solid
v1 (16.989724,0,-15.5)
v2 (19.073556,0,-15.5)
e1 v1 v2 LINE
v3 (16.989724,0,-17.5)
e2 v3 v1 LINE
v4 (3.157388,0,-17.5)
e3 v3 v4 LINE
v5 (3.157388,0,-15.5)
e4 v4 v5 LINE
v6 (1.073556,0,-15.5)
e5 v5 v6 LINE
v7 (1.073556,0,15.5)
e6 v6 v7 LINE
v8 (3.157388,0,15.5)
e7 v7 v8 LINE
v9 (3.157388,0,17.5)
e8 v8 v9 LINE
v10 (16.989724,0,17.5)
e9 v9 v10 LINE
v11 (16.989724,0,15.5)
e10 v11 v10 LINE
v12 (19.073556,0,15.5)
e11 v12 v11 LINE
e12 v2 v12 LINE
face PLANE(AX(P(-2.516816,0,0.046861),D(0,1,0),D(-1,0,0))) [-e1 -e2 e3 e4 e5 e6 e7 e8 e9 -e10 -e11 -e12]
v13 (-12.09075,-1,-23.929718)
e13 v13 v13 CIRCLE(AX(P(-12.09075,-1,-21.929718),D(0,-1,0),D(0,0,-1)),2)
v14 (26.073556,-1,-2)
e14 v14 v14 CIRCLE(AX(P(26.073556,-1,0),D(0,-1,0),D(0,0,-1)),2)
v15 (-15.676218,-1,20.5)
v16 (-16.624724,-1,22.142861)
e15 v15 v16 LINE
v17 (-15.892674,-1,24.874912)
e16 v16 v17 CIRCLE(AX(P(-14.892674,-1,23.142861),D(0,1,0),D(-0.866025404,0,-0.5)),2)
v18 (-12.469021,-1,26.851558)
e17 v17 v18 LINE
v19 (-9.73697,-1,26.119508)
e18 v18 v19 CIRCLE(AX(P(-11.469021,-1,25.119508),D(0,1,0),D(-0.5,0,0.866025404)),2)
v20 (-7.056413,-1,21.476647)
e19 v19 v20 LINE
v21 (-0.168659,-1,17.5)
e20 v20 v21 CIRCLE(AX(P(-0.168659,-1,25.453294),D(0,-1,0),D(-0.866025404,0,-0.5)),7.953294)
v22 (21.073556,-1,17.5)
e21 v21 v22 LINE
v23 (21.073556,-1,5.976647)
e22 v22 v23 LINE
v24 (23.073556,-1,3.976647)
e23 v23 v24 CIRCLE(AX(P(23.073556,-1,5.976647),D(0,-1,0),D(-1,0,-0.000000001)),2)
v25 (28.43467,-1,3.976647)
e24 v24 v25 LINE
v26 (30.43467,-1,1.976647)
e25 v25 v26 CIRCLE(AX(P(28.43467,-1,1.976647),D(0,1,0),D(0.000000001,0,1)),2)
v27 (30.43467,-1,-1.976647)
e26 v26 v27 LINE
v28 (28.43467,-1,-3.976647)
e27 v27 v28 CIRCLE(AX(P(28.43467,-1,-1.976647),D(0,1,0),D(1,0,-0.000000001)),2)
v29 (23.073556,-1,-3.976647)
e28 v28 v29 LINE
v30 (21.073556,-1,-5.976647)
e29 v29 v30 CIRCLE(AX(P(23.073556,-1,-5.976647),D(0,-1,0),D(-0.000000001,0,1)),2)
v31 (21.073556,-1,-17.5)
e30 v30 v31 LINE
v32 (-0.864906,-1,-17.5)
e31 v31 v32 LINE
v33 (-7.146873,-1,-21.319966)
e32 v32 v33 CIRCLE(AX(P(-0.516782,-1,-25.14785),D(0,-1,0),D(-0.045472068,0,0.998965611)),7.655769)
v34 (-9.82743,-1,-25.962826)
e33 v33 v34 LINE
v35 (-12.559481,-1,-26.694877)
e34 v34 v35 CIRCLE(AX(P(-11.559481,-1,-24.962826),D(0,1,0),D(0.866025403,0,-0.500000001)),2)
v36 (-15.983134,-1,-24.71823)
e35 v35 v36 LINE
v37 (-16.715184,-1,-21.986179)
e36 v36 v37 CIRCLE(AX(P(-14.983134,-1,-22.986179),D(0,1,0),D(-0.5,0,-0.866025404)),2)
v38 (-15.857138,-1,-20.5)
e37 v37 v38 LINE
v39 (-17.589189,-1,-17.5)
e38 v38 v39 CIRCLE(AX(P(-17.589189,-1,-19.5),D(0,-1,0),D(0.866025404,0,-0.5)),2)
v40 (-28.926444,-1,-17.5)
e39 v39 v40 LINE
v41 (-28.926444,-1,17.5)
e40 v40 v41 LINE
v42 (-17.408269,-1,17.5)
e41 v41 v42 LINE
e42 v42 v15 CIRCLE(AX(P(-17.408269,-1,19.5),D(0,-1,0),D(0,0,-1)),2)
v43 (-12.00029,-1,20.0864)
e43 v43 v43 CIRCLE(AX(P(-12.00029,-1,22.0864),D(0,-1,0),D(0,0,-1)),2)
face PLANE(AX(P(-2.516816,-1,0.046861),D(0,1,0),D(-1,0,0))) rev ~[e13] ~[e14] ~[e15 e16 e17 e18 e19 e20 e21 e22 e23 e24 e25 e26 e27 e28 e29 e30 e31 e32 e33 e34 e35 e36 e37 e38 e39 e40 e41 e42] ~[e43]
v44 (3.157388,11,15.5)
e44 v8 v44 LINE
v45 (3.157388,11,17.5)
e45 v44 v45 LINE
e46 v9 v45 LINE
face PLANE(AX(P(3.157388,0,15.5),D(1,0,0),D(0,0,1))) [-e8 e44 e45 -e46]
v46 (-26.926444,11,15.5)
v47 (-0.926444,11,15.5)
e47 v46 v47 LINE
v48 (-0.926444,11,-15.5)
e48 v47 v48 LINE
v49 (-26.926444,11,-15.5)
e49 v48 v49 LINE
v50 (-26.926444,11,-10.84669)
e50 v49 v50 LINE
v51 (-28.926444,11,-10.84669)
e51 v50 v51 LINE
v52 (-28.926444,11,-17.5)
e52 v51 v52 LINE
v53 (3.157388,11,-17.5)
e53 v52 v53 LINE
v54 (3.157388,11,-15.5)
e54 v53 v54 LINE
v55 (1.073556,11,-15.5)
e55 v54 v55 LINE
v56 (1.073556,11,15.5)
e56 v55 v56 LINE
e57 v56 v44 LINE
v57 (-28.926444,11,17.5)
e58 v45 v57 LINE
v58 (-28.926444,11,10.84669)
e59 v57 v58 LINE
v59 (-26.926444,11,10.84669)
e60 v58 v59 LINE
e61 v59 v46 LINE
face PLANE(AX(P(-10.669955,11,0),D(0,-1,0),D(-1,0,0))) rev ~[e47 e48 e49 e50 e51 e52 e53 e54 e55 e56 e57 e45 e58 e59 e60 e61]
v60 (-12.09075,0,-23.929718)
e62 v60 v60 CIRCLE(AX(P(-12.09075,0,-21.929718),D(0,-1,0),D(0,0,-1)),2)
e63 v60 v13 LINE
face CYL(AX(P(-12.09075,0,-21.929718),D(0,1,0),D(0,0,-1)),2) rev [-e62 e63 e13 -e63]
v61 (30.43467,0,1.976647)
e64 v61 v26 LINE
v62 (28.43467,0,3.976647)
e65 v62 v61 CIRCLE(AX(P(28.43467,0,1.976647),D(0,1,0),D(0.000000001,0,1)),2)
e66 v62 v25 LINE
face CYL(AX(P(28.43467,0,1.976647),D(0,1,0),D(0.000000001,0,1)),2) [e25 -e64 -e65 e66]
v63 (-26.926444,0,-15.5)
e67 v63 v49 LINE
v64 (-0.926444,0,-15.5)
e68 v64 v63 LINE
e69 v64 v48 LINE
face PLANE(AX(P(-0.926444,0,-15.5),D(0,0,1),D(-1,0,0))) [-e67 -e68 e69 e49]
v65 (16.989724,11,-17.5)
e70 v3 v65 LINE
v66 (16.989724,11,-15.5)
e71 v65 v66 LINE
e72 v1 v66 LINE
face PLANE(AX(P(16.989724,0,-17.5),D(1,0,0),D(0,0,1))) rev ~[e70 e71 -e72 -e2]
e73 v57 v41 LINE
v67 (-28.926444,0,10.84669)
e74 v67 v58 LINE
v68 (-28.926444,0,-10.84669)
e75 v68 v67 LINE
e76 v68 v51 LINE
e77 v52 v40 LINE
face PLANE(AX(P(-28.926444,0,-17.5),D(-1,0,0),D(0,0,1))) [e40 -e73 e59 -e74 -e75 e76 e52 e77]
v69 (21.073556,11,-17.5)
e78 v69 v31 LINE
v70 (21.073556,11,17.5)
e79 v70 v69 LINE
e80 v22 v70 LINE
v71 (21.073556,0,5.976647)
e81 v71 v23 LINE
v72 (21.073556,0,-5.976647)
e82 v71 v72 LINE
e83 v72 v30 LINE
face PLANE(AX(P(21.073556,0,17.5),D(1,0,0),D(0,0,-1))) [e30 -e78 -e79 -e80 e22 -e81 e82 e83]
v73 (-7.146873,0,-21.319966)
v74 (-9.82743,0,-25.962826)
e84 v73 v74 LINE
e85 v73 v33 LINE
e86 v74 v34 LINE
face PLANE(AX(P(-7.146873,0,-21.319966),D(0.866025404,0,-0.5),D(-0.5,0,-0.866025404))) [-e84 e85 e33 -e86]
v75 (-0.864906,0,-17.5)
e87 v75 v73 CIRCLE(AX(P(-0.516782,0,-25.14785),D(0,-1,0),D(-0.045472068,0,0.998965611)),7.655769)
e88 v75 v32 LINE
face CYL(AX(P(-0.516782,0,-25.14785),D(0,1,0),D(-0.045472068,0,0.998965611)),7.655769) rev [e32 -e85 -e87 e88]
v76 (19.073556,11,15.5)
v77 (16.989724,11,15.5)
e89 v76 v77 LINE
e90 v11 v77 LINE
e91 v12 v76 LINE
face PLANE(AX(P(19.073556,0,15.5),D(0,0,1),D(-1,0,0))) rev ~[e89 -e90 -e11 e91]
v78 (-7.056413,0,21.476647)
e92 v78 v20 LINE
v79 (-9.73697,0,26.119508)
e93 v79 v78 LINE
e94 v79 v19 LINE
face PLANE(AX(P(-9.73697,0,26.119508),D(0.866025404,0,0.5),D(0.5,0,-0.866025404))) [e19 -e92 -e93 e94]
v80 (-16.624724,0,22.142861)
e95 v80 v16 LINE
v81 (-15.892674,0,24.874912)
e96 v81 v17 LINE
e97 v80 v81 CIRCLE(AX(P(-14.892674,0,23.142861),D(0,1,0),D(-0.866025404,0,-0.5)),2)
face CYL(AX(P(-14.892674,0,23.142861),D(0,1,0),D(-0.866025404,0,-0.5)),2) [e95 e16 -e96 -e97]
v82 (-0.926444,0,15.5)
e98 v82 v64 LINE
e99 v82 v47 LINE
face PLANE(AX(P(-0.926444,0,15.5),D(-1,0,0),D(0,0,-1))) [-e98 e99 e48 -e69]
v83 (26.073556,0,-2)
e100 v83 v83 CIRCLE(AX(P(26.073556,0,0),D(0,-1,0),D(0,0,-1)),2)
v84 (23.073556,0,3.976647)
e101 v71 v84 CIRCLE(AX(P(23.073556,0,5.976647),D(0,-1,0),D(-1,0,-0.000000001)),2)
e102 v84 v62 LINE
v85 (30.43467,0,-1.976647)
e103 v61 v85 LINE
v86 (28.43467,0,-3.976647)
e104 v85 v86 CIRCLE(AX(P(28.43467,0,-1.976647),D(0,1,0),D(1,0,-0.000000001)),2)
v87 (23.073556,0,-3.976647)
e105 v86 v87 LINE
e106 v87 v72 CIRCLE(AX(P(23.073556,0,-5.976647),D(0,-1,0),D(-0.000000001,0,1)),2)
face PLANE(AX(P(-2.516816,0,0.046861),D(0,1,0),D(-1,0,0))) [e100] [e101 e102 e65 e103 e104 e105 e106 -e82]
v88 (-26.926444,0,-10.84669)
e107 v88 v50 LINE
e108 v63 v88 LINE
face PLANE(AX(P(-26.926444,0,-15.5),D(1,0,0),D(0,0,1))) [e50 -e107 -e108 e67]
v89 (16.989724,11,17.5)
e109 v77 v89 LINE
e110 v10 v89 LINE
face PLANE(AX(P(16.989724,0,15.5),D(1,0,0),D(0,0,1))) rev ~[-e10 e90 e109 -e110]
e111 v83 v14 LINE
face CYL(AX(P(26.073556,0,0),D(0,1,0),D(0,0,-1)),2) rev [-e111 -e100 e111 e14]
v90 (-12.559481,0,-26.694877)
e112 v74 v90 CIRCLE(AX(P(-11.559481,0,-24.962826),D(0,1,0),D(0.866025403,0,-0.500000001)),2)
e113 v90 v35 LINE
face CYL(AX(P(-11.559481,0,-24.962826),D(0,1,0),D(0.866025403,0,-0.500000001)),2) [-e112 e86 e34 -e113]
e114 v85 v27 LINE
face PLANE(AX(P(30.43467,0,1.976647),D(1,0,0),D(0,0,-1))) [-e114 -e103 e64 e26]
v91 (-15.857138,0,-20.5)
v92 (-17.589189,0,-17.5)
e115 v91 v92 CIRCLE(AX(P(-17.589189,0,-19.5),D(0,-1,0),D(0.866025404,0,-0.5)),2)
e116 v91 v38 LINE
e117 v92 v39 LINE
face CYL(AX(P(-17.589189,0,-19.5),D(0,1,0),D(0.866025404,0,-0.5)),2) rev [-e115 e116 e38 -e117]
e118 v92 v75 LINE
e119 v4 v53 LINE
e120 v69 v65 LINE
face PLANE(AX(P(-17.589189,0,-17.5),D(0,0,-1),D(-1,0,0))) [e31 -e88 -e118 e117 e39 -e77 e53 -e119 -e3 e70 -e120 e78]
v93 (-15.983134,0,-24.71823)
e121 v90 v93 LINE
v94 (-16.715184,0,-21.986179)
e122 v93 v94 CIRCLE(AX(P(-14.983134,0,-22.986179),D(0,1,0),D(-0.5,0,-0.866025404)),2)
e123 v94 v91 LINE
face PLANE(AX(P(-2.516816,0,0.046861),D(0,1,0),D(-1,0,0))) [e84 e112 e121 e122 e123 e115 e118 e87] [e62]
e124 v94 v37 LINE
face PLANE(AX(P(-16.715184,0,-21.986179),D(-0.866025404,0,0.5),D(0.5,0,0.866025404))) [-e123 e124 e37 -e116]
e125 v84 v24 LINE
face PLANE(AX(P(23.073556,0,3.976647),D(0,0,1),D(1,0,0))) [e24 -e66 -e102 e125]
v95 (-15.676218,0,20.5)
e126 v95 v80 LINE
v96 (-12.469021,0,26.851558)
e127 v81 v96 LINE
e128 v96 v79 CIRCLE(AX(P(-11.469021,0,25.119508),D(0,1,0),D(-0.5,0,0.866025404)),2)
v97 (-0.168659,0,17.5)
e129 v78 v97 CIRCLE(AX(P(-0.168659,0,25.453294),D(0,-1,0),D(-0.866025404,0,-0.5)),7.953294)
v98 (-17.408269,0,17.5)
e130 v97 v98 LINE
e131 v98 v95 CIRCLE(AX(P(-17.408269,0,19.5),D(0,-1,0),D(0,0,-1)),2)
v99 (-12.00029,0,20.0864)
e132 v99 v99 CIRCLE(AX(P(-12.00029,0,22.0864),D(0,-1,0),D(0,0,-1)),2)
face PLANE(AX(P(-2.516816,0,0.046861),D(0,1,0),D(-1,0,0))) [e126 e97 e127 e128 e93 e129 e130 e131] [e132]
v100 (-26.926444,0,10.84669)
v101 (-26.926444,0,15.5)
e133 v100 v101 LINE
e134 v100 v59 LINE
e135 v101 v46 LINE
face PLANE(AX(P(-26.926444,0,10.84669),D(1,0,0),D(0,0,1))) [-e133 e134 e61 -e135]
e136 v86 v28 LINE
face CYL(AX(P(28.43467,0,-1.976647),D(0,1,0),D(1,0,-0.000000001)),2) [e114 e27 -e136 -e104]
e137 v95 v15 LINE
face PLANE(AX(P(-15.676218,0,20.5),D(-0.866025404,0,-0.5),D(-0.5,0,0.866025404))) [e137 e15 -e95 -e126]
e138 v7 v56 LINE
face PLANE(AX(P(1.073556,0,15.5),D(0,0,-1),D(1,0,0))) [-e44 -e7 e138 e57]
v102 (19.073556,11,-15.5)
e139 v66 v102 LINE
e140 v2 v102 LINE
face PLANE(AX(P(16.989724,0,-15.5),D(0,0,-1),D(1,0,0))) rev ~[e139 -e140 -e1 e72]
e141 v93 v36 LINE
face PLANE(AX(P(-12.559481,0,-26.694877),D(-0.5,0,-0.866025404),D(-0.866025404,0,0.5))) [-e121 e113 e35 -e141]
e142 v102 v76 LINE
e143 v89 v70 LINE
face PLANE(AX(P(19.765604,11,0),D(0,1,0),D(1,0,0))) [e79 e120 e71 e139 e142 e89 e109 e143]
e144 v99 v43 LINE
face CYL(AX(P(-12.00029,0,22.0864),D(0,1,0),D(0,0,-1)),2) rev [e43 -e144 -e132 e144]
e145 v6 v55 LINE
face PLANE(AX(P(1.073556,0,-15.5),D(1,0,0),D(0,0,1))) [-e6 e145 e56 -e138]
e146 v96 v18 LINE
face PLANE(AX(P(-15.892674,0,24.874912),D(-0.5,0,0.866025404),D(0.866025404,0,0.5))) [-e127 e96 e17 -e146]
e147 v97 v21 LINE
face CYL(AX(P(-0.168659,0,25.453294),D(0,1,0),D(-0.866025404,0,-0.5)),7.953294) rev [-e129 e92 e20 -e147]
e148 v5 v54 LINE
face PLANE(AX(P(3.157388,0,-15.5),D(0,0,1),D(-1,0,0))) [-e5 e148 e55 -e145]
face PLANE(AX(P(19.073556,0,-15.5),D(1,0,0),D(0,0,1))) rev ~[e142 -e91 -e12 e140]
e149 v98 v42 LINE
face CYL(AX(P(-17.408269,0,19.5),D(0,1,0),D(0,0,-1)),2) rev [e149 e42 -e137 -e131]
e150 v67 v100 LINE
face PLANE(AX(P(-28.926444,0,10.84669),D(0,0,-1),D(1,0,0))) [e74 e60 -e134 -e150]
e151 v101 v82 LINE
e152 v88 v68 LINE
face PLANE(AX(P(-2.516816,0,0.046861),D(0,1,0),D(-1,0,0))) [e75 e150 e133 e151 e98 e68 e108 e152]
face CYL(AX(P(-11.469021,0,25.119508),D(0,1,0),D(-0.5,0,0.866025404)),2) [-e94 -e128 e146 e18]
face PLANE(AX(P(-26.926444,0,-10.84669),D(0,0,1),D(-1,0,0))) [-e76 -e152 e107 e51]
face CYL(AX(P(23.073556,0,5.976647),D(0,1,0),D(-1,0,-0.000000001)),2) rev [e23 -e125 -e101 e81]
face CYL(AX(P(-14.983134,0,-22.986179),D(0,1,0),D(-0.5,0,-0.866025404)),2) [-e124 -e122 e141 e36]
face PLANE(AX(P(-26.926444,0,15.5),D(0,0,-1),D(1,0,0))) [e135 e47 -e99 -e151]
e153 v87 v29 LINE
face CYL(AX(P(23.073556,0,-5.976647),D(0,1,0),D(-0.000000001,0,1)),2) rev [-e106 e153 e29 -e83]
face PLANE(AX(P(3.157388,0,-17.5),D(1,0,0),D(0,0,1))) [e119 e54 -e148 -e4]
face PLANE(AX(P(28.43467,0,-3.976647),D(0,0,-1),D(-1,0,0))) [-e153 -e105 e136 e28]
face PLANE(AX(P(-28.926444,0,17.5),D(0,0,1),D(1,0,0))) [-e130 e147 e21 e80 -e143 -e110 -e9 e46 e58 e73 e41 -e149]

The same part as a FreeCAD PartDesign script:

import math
import FreeCAD as App
import Part
import Sketcher

V = App.Vector
Q = App.Units.Quantity


def add_polygon(sketch, points):
    """Adds a closed chain of lines whose ends are joined by coincident constraints."""
    first, n = sketch.GeometryCount, len(points)
    for a, b in zip(points, points[1:] + points[:1]):
        sketch.addGeometry(Part.LineSegment(App.Vector(*a, 0), App.Vector(*b, 0)), False)
    for i in range(n):
        sketch.addConstraint(Sketcher.Constraint("Coincident", first + i, 2, first + (i + 1) % n, 1))

doc = App.newDocument("Part")
body = doc.addObject("PartDesign::Body", "Body")

# Sketch on XZ plane
sketch1 = body.newObject("Sketcher::SketchObject", "Sketch")
sketch1.AttachmentSupport = (doc.getObject("XZ_Plane"), [""])
sketch1.MapMode = "FlatFace"
add_polygon(sketch1, [(-0.9, 15.5), (-26.9, 15.5), (-26.9, 10.8), (-28.9, 10.8), (-28.9, 17.5), (3.2, 17.5), (3.2, 15.5), (1.1, 15.5), (1.1, -15.5), (3.2, -15.5), (3.2, -17.5), (-28.9, -17.5), (-28.9, -10.8), (-26.9, -10.8), (-26.9, -15.5), (-0.9, -15.5)])  # lines 0-15
sketch1.addConstraint([
    Sketcher.Constraint("Horizontal", 0),
    Sketcher.Constraint("Vertical", 1),
    Sketcher.Constraint("Horizontal", 2),
    Sketcher.Constraint("Vertical", 3),
    Sketcher.Constraint("Horizontal", 4),
    Sketcher.Constraint("Vertical", 5),
    Sketcher.Constraint("Horizontal", 6),
    Sketcher.Constraint("Vertical", 7),
    Sketcher.Constraint("Horizontal", 8),
    Sketcher.Constraint("Vertical", 9),
    Sketcher.Constraint("Horizontal", 10),
    Sketcher.Constraint("Vertical", 11),
    Sketcher.Constraint("Horizontal", 12),
    Sketcher.Constraint("Vertical", 13),
    Sketcher.Constraint("Horizontal", 14),
    Sketcher.Constraint("Vertical", 15),
    Sketcher.Constraint("Symmetric", 5, 2, 8, 2, -1),
    Sketcher.Constraint("Symmetric", 3, 2, 10, 2, -1),
    Sketcher.Constraint("Symmetric", 1, 2, 12, 2, -1),
    Sketcher.Constraint("Horizontal", 0, 2, 5, 2),
    Sketcher.Constraint("Horizontal", 8, 2, 13, 2),
    Sketcher.Constraint("Equal", 12, 5),
    Sketcher.Constraint("DistanceX", 0, 2, 0, 1, 26.0),
    Sketcher.Constraint("DistanceX", 2, 2, 2, 1, 2.0),
    Sketcher.Constraint("DistanceY", 7, 2, 7, 1, 31.0),
    Sketcher.Constraint("DistanceX", 0, 2, 6, 2, 28.0),
    Sketcher.Constraint("DistanceX", 4, 1, 4, 2, 32.083832),
    Sketcher.Constraint("DistanceY", 1, 2, 1, 1, 4.65331),
    Sketcher.Constraint("DistanceX", -1, 1, 4, 2, 3.157388),
])
pad1 = body.newObject("PartDesign::Pad", "Pad")
pad1.Profile = sketch1
pad1.Length = 11
pad1.Reversed = True
body2 = doc.addObject("PartDesign::Body", "Body001")

# Sketch on XZ plane
sketch2 = body2.newObject("Sketcher::SketchObject", "Sketch001")
sketch2.AttachmentSupport = (doc.getObject("XZ_Plane001"), [""])
sketch2.MapMode = "FlatFace"
add_polygon(sketch2, [(19.1, -15.5), (19.1, 15.5), (17, 15.5), (17, 17.5), (21.1, 17.5), (21.1, -17.5), (17, -17.5), (17, -15.5)])  # lines 0-7
sketch2.addConstraint([
    Sketcher.Constraint("Vertical", 0),
    Sketcher.Constraint("Horizontal", 1),
    Sketcher.Constraint("Vertical", 2),
    Sketcher.Constraint("Horizontal", 3),
    Sketcher.Constraint("Vertical", 4),
    Sketcher.Constraint("Horizontal", 5),
    Sketcher.Constraint("Vertical", 6),
    Sketcher.Constraint("Horizontal", 7),
    Sketcher.Constraint("Symmetric", 2, 2, 5, 2, -1),
    Sketcher.Constraint("Equal", 2, 6),
    Sketcher.Constraint("DistanceY", 0, 1, 0, 2, 31.0),
    Sketcher.Constraint("DistanceY", 2, 1, 2, 2, 2.0),
    Sketcher.Constraint("DistanceX", 0, 2, 3, 2, 2.0),
    Sketcher.Constraint("DistanceX", 1, 2, 1, 1, 2.083832),
    Sketcher.Constraint("DistanceX", -1, 1, 0, 2, 19.073556),
])
pad2 = body2.newObject("PartDesign::Pad", "Pad001")
pad2.Profile = sketch2
pad2.Length = 11
pad2.Reversed = True
body.AllowCompound = True
doc.recompute()

boolean = body.newObject("PartDesign::Boolean", "Boolean")
boolean.Type = "Fuse"
boolean.addObjects([body2])

# Sketch on XZ plane
sketch3 = body.newObject("Sketcher::SketchObject", "Sketch002")
sketch3.AttachmentSupport = (doc.getObject("XZ_Plane"), [""])
sketch3.MapMode = "FlatFace"
sketch3.addGeometry([
    Part.LineSegment(V(-17.4, 17.5, 0), V(-28.9, 17.5, 0)),  # 0
    Part.LineSegment(V(-28.9, 17.5, 0), V(-28.9, -17.5, 0)),  # 1
    Part.LineSegment(V(-28.9, -17.5, 0), V(-17.6, -17.5, 0)),  # 2
    Part.ArcOfCircle(Part.Circle(V(-17.6, -19.5, 0), V(0, 0, 1), 2), math.radians(-30), math.radians(90)),  # 3
    Part.LineSegment(V(-15.9, -20.5, 0), V(-16.7, -22, 0)),  # 4
    Part.ArcOfCircle(Part.Circle(V(-15, -23, 0), V(0, 0, 1), 2), math.radians(150), math.radians(240)),  # 5
    Part.LineSegment(V(-16, -24.7, 0), V(-12.6, -26.7, 0)),  # 6
    Part.ArcOfCircle(Part.Circle(V(-11.6, -25, 0), V(0, 0, 1), 2), math.radians(-120), math.radians(-30)),  # 7
    Part.LineSegment(V(-9.8, -26, 0), V(-7.1, -21.3, 0)),  # 8
    Part.ArcOfCircle(Part.Circle(V(-0.5, -25.1, 0), V(0, 0, 1), 7.7), math.radians(93), math.radians(150)),  # 9
    Part.LineSegment(V(-0.9, -17.5, 0), V(21.1, -17.5, 0)),  # 10
    Part.LineSegment(V(21.1, -17.5, 0), V(21.1, -6, 0)),  # 11
    Part.ArcOfCircle(Part.Circle(V(23.1, -6, 0), V(0, 0, 1), 2), math.radians(90), math.radians(180)),  # 12
    Part.LineSegment(V(23.1, -4, 0), V(28.4, -4, 0)),  # 13
    Part.ArcOfCircle(Part.Circle(V(28.4, -2, 0), V(0, 0, 1), 2), math.radians(-90), math.radians(0)),  # 14
    Part.LineSegment(V(30.4, -2, 0), V(30.4, 2, 0)),  # 15
    Part.ArcOfCircle(Part.Circle(V(28.4, 2, 0), V(0, 0, 1), 2), math.radians(0), math.radians(90)),  # 16
    Part.LineSegment(V(28.4, 4, 0), V(23.1, 4, 0)),  # 17
    Part.ArcOfCircle(Part.Circle(V(23.1, 6, 0), V(0, 0, 1), 2), math.radians(-180), math.radians(-90)),  # 18
    Part.LineSegment(V(21.1, 6, 0), V(21.1, 17.5, 0)),  # 19
    Part.LineSegment(V(21.1, 17.5, 0), V(-0.2, 17.5, 0)),  # 20
    Part.ArcOfCircle(Part.Circle(V(-0.2, 25.5, 0), V(0, 0, 1), 8), math.radians(-150), math.radians(-90)),  # 21
    Part.LineSegment(V(-7.1, 21.5, 0), V(-9.7, 26.1, 0)),  # 22
    Part.ArcOfCircle(Part.Circle(V(-11.5, 25.1, 0), V(0, 0, 1), 2), math.radians(30), math.radians(120)),  # 23
    Part.LineSegment(V(-12.5, 26.9, 0), V(-15.9, 24.9, 0)),  # 24
    Part.ArcOfCircle(Part.Circle(V(-14.9, 23.1, 0), V(0, 0, 1), 2), math.radians(120), math.radians(210)),  # 25
    Part.LineSegment(V(-16.6, 22.1, 0), V(-15.7, 20.5, 0)),  # 26
    Part.ArcOfCircle(Part.Circle(V(-17.4, 19.5, 0), V(0, 0, 1), 2), math.radians(-90), math.radians(30)),  # 27
    Part.Circle(V(26.1, 0, 0), V(0, 0, 1), 2),  # 28
    Part.Circle(V(-12.1, -21.9, 0), V(0, 0, 1), 2),  # 29
    Part.Circle(V(-12, 22.1, 0), V(0, 0, 1), 2),  # 30
], False)
sketch3.addConstraint([
    Sketcher.Constraint("Coincident", 0, 2, 1, 1),
    Sketcher.Constraint("Coincident", 1, 2, 2, 1),
    Sketcher.Constraint("Tangent", 2, 2, 3, 2),
    Sketcher.Constraint("Tangent", 3, 1, 4, 1),
    Sketcher.Constraint("Tangent", 4, 2, 5, 1),
    Sketcher.Constraint("Tangent", 5, 2, 6, 1),
    Sketcher.Constraint("Tangent", 6, 2, 7, 1),
    Sketcher.Constraint("Tangent", 7, 2, 8, 1),
    Sketcher.Constraint("Tangent", 8, 2, 9, 2),
    Sketcher.Constraint("Coincident", 9, 1, 10, 1),
    Sketcher.Constraint("Coincident", 10, 2, 11, 1),
    Sketcher.Constraint("Tangent", 11, 2, 12, 2),
    Sketcher.Constraint("Tangent", 12, 1, 13, 1),
    Sketcher.Constraint("Tangent", 13, 2, 14, 1),
    Sketcher.Constraint("Tangent", 14, 2, 15, 1),
    Sketcher.Constraint("Tangent", 15, 2, 16, 1),
    Sketcher.Constraint("Tangent", 16, 2, 17, 1),
    Sketcher.Constraint("Tangent", 17, 2, 18, 2),
    Sketcher.Constraint("Tangent", 18, 1, 19, 1),
    Sketcher.Constraint("Coincident", 19, 2, 20, 1),
    Sketcher.Constraint("Tangent", 20, 2, 21, 2),
    Sketcher.Constraint("Tangent", 21, 1, 22, 1),
    Sketcher.Constraint("Tangent", 22, 2, 23, 1),
    Sketcher.Constraint("Tangent", 23, 2, 24, 1),
    Sketcher.Constraint("Tangent", 24, 2, 25, 1),
    Sketcher.Constraint("Tangent", 25, 2, 26, 1),
    Sketcher.Constraint("Tangent", 26, 2, 27, 2),
    Sketcher.Constraint("Tangent", 27, 1, 0, 1),
    Sketcher.Constraint("Horizontal", 0),
    Sketcher.Constraint("Vertical", 1),
    Sketcher.Constraint("Horizontal", 2),
    Sketcher.Constraint("Horizontal", 10),
    Sketcher.Constraint("Vertical", 11),
    Sketcher.Constraint("Horizontal", 13),
    Sketcher.Constraint("Vertical", 15),
    Sketcher.Constraint("Horizontal", 17),
    Sketcher.Constraint("Vertical", 19),
    Sketcher.Constraint("Horizontal", 20),
    Sketcher.Constraint("Equal", 3, 5),
    Sketcher.Constraint("Equal", 5, 7),
    Sketcher.Constraint("Equal", 7, 12),
    Sketcher.Constraint("Equal", 12, 14),
    Sketcher.Constraint("Equal", 14, 16),
    Sketcher.Constraint("Equal", 16, 18),
    Sketcher.Constraint("Equal", 18, 23),
    Sketcher.Constraint("Equal", 23, 25),
    Sketcher.Constraint("Equal", 25, 27),
    Sketcher.Constraint("Equal", 27, 28),
    Sketcher.Constraint("Equal", 28, 29),
    Sketcher.Constraint("Equal", 29, 30),
    Sketcher.Constraint("Symmetric", 12, 3, 18, 3, -1),
    Sketcher.Constraint("PointOnObject", 28, 3, -1),
    Sketcher.Constraint("Perpendicular", 4, 6),
    Sketcher.Constraint("Perpendicular", 6, 8),
    Sketcher.Constraint("Perpendicular", 22, 24),
    Sketcher.Constraint("Perpendicular", 24, 26),
    Sketcher.Constraint("Horizontal", 2, 2, 9, 1),
    Sketcher.Constraint("Horizontal", 0, 2, 19, 2),
    Sketcher.Constraint("Equal", 11, 19),
    Sketcher.Constraint("Equal", 8, 22),
    Sketcher.Constraint("Equal", 6, 24),
    Sketcher.Constraint("Diameter", 28, 4.0),
    Sketcher.Constraint("DistanceY", 1, 2, 1, 1, 35.0),
    Sketcher.Constraint("Angle", 4, Q("-120 deg")),
    Sketcher.Constraint("Angle", 22, Q("120 deg")),
    Sketcher.Constraint("DistanceX", 12, 3, 28, 3, 3.0),
    Sketcher.Constraint("Radius", 9, 7.655769),
    Sketcher.Constraint("Radius", 21, 7.953294),
    Sketcher.Constraint("DistanceY", -1, 1, 30, 3, 22.0864),
    Sketcher.Constraint("DistanceX", 7, 3, 9, 3, 11.042698),
    Sketcher.Constraint("DistanceX", 0, 2, 0, 1, 11.518175),
    Sketcher.Constraint("DistanceX", 2, 1, 2, 2, 11.337255),
    Sketcher.Constraint("DistanceX", 10, 1, 10, 2, 21.938462),
    Sketcher.Constraint("DistanceX", 13, 1, 13, 2, 5.361114),
    Sketcher.Constraint("DistanceX", 20, 2, 20, 1, 21.242215),
    Sketcher.Constraint("DistanceY", 11, 1, 11, 2, 11.523353),
    Sketcher.Constraint("DistanceX", 3, 3, -1, 1, 17.589189),
    Sketcher.Constraint("DistanceY", 5, 3, -1, 1, 22.986179),
    Sketcher.Constraint("DistanceX", 29, 3, -1, 1, 12.09075),
    Sketcher.Constraint("DistanceY", 29, 3, -1, 1, 21.929718),
    Sketcher.Constraint("DistanceX", 30, 3, -1, 1, 12.00029),
])
pad3 = body.newObject("PartDesign::Pad", "Pad002")
pad3.Profile = sketch3
pad3.Length = 1

doc.recompute()
